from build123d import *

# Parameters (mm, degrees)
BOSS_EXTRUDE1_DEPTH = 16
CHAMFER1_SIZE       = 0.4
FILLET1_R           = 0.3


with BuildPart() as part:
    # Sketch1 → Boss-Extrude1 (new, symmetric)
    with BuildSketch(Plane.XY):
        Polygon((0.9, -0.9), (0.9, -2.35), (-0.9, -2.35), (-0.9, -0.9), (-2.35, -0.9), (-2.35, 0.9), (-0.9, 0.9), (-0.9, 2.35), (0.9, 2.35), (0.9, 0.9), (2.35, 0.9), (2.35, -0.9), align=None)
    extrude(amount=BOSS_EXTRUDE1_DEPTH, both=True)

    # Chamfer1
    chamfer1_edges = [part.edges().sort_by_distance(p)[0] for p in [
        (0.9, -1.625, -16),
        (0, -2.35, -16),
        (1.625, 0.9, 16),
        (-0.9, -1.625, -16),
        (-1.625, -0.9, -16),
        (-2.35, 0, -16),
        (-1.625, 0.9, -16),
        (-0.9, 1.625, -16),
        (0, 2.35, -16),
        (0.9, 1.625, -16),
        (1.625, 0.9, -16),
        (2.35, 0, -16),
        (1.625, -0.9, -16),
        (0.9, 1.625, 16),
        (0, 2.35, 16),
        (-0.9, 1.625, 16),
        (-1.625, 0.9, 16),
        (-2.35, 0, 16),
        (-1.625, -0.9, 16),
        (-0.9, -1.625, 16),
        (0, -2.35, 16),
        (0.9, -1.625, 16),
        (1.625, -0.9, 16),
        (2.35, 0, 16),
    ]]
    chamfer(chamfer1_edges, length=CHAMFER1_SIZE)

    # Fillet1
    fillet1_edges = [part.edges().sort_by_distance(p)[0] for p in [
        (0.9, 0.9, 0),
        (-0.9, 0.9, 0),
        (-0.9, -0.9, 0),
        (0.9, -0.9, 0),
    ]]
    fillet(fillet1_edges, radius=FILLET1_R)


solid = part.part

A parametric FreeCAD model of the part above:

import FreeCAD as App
import Part
import Sketcher

V = App.Vector
Q = App.Units.Quantity


def edges_at(feature, points):
    """Names of the edges that pass closest to the given points."""
    edges = feature.Shape.Edges
    near = lambda p: min(range(len(edges)), key=lambda i: edges[i].distToShape(Part.Vertex(*p))[0])
    return sorted({f"Edge{near(p) + 1}" for p in points})


def add_polygon(sketch, points):
    """Adds a closed chain of lines whose ends are joined by coincident constraints."""
    first, n = sketch.GeometryCount, len(points)
    for a, b in zip(points, points[1:] + points[:1]):
        sketch.addGeometry(Part.LineSegment(App.Vector(*a, 0), App.Vector(*b, 0)), False)
    for i in range(n):
        sketch.addConstraint(Sketcher.Constraint("Coincident", first + i, 2, first + (i + 1) % n, 1))

doc = App.newDocument("Part")
body = doc.addObject("PartDesign::Body", "Body")

# Sketch on XY plane
sketch1 = body.newObject("Sketcher::SketchObject", "Sketch")
sketch1.AttachmentSupport = (doc.getObject("XY_Plane"), [""])
sketch1.MapMode = "FlatFace"
add_polygon(sketch1, [(0.9, -2.4), (0.9, -0.9), (2.4, -0.9), (2.4, 0.9), (0.9, 0.9), (0.9, 2.4), (-0.9, 2.4), (-0.9, 0.9), (-2.4, 0.9), (-2.4, -0.9), (-0.9, -0.9), (-0.9, -2.4)])  # lines 0-11
sketch1.addConstraint([
    Sketcher.Constraint("Vertical", 0),
    Sketcher.Constraint("Horizontal", 1),
    Sketcher.Constraint("Vertical", 2),
    Sketcher.Constraint("Horizontal", 3),
    Sketcher.Constraint("Vertical", 4),
    Sketcher.Constraint("Horizontal", 5),
    Sketcher.Constraint("Vertical", 6),
    Sketcher.Constraint("Horizontal", 7),
    Sketcher.Constraint("Vertical", 8),
    Sketcher.Constraint("Horizontal", 9),
    Sketcher.Constraint("Vertical", 10),
    Sketcher.Constraint("Horizontal", 11),
    Sketcher.Constraint("Symmetric", 0, 2, 6, 2, -1, 1),
    Sketcher.Constraint("Symmetric", 2, 2, 8, 2, -1, 1),
    Sketcher.Constraint("Symmetric", 4, 2, 10, 2, -1, 1),
    Sketcher.Constraint("Symmetric", 3, 2, 6, 2, -2),
    Sketcher.Constraint("Equal", 9, 0),
    Sketcher.Constraint("Equal", 11, 2),
    Sketcher.Constraint("DistanceX", 5, 2, 5, 1, Q("1.8 mm")),
    Sketcher.Constraint("DistanceX", 1, 1, 1, 2, Q("1.45 mm")),
])
pad1 = body.newObject("PartDesign::Pad", "Pad")
pad1.Profile = sketch1
pad1.Length = 32
pad1.Midplane = True
doc.recompute()

chamfer = body.newObject("PartDesign::Chamfer", "Chamfer")
chamfer.Base = (pad1, edges_at(pad1, [
    (0.9, -1.625, -16),
    (0, -2.35, -16),
    (1.625, 0.9, 16),
    (-0.9, -1.625, -16),
    (-1.625, -0.9, -16),
    (-2.35, 0, -16),
    (-1.625, 0.9, -16),
    (-0.9, 1.625, -16),
    (0, 2.35, -16),
    (0.9, 1.625, -16),
    (1.625, 0.9, -16),
    (2.35, 0, -16),
    (1.625, -0.9, -16),
    (0.9, 1.625, 16),
    (0, 2.35, 16),
    (-0.9, 1.625, 16),
    (-1.625, 0.9, 16),
    (-2.35, 0, 16),
    (-1.625, -0.9, 16),
    (-0.9, -1.625, 16),
    (0, -2.35, 16),
    (0.9, -1.625, 16),
    (1.625, -0.9, 16),
    (2.35, 0, 16),
]))
chamfer.Size = 0.4
doc.recompute()

fillet = body.newObject("PartDesign::Fillet", "Fillet")
fillet.Base = (chamfer, edges_at(chamfer, [
    (0.9, 0.9, 0),
    (-0.9, 0.9, 0),
    (-0.9, -0.9, 0),
    (0.9, -0.9, 0),
]))
fillet.Radius = 0.3

doc.recompute()
